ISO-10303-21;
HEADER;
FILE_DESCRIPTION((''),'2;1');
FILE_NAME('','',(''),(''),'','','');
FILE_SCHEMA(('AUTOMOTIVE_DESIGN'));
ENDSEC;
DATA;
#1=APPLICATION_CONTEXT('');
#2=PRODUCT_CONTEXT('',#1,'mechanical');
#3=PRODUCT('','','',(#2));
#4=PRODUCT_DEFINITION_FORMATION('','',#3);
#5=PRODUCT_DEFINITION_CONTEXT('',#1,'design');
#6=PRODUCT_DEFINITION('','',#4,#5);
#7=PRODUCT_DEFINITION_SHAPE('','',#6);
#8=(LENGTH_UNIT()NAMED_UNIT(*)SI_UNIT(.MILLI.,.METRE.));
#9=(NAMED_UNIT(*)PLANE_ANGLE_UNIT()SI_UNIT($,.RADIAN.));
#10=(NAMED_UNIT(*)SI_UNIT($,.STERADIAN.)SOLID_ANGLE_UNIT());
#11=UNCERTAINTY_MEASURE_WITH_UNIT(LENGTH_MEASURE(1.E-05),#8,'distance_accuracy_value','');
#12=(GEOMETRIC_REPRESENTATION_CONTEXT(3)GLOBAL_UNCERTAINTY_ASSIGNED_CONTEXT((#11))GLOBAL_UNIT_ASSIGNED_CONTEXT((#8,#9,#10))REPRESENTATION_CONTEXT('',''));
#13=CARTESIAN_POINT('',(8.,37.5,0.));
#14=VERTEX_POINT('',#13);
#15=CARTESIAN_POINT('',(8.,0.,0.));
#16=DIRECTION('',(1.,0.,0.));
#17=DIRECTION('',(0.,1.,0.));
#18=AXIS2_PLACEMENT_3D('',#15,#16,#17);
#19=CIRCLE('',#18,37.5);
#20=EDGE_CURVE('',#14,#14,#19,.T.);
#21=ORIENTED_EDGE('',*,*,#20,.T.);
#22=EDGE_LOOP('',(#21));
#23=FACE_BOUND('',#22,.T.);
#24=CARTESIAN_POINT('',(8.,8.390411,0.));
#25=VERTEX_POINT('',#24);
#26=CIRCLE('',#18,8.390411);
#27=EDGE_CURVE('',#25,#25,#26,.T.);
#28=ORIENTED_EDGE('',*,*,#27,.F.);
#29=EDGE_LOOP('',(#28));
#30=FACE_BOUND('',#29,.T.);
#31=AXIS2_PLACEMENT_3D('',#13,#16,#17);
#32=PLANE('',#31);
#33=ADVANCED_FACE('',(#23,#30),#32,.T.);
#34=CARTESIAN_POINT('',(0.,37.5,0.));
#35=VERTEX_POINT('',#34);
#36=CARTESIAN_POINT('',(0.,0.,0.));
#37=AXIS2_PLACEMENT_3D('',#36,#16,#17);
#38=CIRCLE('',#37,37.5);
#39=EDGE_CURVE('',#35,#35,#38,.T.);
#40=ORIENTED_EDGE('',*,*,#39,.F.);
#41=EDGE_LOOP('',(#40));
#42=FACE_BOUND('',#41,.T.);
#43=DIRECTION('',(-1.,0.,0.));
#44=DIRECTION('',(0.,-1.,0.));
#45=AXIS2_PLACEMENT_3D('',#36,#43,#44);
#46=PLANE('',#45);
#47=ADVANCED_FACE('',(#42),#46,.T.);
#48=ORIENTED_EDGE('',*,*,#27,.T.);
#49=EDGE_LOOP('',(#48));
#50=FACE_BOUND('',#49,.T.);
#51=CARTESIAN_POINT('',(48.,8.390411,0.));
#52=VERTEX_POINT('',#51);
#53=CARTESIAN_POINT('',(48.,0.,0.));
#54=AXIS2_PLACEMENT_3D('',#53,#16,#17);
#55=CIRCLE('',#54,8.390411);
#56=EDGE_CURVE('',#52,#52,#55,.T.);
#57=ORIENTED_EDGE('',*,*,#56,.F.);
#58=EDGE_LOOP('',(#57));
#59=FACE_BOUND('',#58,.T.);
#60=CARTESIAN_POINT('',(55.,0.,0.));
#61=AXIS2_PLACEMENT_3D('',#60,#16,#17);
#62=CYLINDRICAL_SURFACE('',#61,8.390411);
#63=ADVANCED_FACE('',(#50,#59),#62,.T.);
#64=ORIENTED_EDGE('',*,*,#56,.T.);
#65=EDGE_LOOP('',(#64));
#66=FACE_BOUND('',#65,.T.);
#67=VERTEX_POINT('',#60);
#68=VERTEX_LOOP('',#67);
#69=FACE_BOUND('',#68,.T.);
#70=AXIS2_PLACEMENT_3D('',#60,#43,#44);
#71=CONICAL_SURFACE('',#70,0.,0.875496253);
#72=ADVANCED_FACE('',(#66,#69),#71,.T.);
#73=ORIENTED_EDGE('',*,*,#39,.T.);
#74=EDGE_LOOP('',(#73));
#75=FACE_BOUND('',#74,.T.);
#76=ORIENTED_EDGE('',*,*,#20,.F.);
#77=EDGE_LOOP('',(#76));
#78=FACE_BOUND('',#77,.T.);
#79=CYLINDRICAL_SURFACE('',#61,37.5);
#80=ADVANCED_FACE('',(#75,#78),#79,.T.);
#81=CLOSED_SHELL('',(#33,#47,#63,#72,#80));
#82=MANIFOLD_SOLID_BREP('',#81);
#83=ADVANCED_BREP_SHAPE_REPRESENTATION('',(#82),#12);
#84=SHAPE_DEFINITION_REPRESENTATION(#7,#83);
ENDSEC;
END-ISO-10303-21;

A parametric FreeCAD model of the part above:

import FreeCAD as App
import Part
import Sketcher

V = App.Vector
Q = App.Units.Quantity


def add_polygon(sketch, points):
    """Adds a closed chain of lines whose ends are joined by coincident constraints."""
    first, n = sketch.GeometryCount, len(points)
    for a, b in zip(points, points[1:] + points[:1]):
        sketch.addGeometry(Part.LineSegment(App.Vector(*a, 0), App.Vector(*b, 0)), False)
    for i in range(n):
        sketch.addConstraint(Sketcher.Constraint("Coincident", first + i, 2, first + (i + 1) % n, 1))

doc = App.newDocument("Part")
body = doc.addObject("PartDesign::Body", "Body")

# Sketch on XY plane
sketch1 = body.newObject("Sketcher::SketchObject", "Sketch")
sketch1.AttachmentSupport = (doc.getObject("XY_Plane"), [""])
sketch1.MapMode = "FlatFace"
add_polygon(sketch1, [(0, 38), (0, 0), (55, 0), (48, 8), (8, 8), (8, 38)])  # lines 0-5
sketch1.addConstraint(Sketcher.Constraint("Vertical", 0))
sketch1.addConstraint(Sketcher.Constraint("Horizontal", 1))
sketch1.addConstraint(Sketcher.Constraint("Horizontal", 3))
sketch1.addConstraint(Sketcher.Constraint("Vertical", 4))
sketch1.addConstraint(Sketcher.Constraint("Horizontal", 5))
sketch1.addConstraint(Sketcher.Constraint("Coincident", 0, 2, -1, 1))
sketch1.addConstraint(Sketcher.Constraint("DistanceX", 1, 1, 1, 2, Q("55 mm")))
sketch1.addConstraint(Sketcher.Constraint("DistanceX", 3, 2, 3, 1, Q("40 mm")))
sketch1.addConstraint(Sketcher.Constraint("DistanceX", 5, 2, 5, 1, Q("8 mm")))
sketch1.addConstraint(Sketcher.Constraint("DistanceY", 0, 2, 0, 1, Q("37.5 mm")))
sketch1.addConstraint(Sketcher.Constraint("DistanceY", 4, 1, 4, 2, Q("29.109589 mm")))
revolution = body.newObject("PartDesign::Revolution", "Revolution")
revolution.Profile = sketch1
revolution.ReferenceAxis = (sketch1, ["H_Axis"])
revolution.Angle = 360

doc.recompute()
